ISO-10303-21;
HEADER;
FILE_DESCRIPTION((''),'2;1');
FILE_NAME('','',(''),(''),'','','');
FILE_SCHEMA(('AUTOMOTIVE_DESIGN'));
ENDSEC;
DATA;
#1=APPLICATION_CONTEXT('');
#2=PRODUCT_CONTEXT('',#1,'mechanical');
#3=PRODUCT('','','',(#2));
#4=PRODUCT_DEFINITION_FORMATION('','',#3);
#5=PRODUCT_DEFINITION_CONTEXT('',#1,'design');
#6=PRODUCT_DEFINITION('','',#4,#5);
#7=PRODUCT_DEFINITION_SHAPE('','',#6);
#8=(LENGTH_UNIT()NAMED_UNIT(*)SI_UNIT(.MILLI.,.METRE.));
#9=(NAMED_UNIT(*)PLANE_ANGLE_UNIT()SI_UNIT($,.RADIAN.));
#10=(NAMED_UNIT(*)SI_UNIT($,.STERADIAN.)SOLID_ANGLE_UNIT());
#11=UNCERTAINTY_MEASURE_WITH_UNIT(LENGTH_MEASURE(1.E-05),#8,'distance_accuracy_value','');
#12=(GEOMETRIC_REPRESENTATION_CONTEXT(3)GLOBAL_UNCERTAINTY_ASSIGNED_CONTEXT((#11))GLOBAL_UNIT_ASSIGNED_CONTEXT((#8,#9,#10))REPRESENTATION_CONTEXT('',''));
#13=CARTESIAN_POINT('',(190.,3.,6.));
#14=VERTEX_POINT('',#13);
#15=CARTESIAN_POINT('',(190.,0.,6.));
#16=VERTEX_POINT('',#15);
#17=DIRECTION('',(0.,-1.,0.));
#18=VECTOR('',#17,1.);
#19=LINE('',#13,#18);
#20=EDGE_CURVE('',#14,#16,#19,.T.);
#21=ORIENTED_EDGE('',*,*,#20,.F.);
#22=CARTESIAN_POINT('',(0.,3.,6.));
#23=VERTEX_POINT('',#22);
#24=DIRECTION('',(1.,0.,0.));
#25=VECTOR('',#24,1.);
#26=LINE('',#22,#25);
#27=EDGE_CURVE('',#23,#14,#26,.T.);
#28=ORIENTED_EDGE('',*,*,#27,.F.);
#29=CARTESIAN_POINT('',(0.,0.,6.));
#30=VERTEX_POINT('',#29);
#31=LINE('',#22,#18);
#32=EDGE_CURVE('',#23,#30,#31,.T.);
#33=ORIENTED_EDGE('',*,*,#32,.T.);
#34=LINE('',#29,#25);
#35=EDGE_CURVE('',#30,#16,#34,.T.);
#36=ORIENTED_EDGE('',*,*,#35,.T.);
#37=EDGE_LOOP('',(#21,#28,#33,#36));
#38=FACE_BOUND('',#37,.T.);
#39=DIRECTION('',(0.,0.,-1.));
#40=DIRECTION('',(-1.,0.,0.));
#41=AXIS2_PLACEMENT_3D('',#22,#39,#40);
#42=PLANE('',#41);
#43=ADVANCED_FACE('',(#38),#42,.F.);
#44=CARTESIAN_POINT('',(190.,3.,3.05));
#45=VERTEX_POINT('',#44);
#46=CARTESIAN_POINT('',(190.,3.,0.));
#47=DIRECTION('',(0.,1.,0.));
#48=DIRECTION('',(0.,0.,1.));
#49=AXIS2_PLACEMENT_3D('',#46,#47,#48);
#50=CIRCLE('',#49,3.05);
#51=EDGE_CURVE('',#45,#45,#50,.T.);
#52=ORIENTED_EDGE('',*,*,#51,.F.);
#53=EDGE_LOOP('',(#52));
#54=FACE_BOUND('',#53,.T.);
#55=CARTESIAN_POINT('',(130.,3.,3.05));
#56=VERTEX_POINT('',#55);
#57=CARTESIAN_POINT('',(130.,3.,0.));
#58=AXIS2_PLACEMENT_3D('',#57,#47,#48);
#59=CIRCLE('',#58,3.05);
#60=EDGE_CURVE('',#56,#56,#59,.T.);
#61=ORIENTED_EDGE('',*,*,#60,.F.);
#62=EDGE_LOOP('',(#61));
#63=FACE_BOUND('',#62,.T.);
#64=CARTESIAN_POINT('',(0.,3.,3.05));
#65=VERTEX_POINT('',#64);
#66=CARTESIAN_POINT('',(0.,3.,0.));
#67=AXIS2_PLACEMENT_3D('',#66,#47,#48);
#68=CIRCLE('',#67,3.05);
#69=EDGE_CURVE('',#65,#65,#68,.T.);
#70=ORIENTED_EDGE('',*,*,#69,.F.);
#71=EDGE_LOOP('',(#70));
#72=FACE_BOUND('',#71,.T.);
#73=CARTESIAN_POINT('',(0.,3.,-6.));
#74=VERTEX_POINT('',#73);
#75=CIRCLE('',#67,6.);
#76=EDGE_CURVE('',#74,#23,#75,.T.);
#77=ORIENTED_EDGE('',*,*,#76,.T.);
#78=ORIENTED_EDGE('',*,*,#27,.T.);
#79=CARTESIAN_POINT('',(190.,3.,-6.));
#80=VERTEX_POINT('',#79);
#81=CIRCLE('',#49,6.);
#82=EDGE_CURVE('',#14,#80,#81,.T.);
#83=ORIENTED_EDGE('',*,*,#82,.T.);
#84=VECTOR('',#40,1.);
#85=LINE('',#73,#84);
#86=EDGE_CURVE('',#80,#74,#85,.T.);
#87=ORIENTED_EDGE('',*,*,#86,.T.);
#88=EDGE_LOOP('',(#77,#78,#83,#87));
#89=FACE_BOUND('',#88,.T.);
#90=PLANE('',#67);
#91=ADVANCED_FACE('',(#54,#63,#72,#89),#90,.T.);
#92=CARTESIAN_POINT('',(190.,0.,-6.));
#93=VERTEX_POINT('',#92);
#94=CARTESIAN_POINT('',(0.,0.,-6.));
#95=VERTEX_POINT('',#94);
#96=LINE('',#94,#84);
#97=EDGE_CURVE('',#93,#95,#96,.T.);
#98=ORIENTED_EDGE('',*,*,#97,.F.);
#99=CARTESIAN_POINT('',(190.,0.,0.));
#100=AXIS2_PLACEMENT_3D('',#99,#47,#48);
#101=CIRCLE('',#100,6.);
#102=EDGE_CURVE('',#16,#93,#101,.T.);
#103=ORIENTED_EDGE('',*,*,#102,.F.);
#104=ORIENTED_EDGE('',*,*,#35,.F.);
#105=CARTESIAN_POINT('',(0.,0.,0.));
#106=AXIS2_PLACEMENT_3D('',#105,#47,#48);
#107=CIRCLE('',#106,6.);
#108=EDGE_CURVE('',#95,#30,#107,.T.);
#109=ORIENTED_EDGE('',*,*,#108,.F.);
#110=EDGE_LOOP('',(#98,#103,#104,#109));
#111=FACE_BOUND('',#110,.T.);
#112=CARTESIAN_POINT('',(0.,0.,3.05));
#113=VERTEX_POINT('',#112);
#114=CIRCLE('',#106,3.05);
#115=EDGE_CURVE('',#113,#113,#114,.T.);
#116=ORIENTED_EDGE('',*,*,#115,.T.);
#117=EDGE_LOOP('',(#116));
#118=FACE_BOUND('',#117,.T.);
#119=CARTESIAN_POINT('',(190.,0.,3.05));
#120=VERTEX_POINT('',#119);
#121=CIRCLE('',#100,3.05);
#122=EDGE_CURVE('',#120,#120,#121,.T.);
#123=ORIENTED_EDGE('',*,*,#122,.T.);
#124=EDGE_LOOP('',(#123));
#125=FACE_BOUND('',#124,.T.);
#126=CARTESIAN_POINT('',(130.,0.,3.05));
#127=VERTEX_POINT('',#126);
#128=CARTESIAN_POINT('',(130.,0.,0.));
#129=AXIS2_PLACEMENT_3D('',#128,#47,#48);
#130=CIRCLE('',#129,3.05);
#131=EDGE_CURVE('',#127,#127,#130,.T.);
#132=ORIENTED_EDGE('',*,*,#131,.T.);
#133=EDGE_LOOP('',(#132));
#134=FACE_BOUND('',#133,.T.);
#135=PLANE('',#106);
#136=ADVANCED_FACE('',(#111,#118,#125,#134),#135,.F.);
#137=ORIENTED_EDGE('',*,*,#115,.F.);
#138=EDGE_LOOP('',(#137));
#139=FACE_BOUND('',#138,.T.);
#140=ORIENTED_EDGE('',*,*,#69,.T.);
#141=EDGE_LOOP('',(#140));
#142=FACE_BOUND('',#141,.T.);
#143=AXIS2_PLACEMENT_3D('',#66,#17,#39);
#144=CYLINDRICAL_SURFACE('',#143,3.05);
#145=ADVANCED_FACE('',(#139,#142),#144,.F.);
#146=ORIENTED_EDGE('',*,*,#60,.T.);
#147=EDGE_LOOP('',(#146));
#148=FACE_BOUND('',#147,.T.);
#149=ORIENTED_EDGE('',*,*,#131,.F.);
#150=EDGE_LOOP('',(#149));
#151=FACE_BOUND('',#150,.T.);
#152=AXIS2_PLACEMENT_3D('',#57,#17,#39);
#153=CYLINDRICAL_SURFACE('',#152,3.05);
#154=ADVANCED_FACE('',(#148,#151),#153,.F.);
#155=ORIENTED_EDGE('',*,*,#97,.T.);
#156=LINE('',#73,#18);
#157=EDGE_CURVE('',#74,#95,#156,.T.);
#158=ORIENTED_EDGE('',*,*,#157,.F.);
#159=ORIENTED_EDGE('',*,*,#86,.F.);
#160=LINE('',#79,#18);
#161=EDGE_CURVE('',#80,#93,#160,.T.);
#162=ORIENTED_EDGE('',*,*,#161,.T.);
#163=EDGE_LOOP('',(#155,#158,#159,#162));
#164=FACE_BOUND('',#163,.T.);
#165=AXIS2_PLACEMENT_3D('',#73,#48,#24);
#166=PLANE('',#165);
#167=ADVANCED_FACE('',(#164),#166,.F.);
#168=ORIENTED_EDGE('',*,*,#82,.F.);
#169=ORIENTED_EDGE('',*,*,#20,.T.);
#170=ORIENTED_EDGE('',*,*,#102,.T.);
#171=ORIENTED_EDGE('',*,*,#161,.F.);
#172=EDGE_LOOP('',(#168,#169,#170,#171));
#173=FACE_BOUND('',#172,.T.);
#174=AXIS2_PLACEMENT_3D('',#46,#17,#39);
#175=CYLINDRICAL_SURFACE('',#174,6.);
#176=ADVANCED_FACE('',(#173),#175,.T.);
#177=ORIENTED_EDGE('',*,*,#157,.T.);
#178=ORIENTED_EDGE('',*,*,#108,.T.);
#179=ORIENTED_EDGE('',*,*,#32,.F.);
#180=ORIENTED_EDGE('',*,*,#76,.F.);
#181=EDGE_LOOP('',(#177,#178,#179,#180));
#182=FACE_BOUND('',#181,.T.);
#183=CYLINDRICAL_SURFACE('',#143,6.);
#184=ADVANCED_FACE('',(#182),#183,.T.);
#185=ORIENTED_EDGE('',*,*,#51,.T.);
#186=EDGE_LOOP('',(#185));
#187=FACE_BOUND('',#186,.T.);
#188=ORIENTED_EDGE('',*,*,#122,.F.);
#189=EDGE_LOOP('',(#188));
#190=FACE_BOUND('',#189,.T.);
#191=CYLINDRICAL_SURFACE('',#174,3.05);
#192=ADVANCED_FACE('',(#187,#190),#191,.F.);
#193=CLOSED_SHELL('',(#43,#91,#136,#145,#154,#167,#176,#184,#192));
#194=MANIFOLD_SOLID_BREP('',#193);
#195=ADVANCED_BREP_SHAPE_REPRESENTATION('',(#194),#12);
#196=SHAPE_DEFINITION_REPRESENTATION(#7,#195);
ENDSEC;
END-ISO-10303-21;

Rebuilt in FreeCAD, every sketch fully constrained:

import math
import FreeCAD as App
import Part
import Sketcher
Q = App.Units.Quantity

doc = App.newDocument("Part")
body = doc.addObject("PartDesign::Body", "Body")

sketch1 = body.newObject("Sketcher::SketchObject", "Sketch")
sketch1.AttachmentSupport = (doc.getObject("XZ_Plane"), [""])
sketch1.MapMode = "FlatFace"
sketch1.addGeometry(Part.LineSegment(App.Vector(190, -6, 0), App.Vector(0, -6, 0)), False)
sketch1.addGeometry(Part.ArcOfCircle(Part.Circle(App.Vector(0, 0, 0), App.Vector(0, 0, 1), 6), math.radians(90), math.radians(270)), False)
sketch1.addGeometry(Part.LineSegment(App.Vector(0, 6, 0), App.Vector(190, 6, 0)), False)
sketch1.addGeometry(Part.ArcOfCircle(Part.Circle(App.Vector(190, 0, 0), App.Vector(0, 0, 1), 6), math.radians(-90), math.radians(90)), False)
sketch1.addGeometry(Part.Circle(App.Vector(190, 0, 0), App.Vector(0, 0, 1), 3), False)
sketch1.addGeometry(Part.Circle(App.Vector(130, 0, 0), App.Vector(0, 0, 1), 3), False)
sketch1.addGeometry(Part.Circle(App.Vector(0, 0, 0), App.Vector(0, 0, 1), 3), False)
sketch1.addConstraint(Sketcher.Constraint("Tangent", 0, 2, 1, 2))
sketch1.addConstraint(Sketcher.Constraint("Tangent", 1, 1, 2, 1))
sketch1.addConstraint(Sketcher.Constraint("Tangent", 2, 2, 3, 2))
sketch1.addConstraint(Sketcher.Constraint("Tangent", 3, 1, 0, 1))
sketch1.addConstraint(Sketcher.Constraint("Horizontal", 0))
sketch1.addConstraint(Sketcher.Constraint("Horizontal", 2))
sketch1.addConstraint(Sketcher.Constraint("Coincident", 1, 3, -1, 1))
sketch1.addConstraint(Sketcher.Constraint("Coincident", 6, 3, -1, 1))
sketch1.addConstraint(Sketcher.Constraint("Coincident", 4, 3, 3, 3))
sketch1.addConstraint(Sketcher.Constraint("Equal", 4, 5))
sketch1.addConstraint(Sketcher.Constraint("Equal", 5, 6))
sketch1.addConstraint(Sketcher.Constraint("PointOnObject", 5, 3, -1))
sketch1.addConstraint(Sketcher.Constraint("Radius", 1, Q("6 mm")))
sketch1.addConstraint(Sketcher.Constraint("Diameter", 4, Q("6.1 mm")))
sketch1.addConstraint(Sketcher.Constraint("DistanceX", 0, 2, 0, 1, Q("190 mm")))
sketch1.addConstraint(Sketcher.Constraint("DistanceX", -1, 1, 5, 3, Q("130 mm")))
pad1 = body.newObject("PartDesign::Pad", "Pad")
pad1.Profile = sketch1
pad1.Length = 3
pad1.Reversed = True

doc.recompute()
